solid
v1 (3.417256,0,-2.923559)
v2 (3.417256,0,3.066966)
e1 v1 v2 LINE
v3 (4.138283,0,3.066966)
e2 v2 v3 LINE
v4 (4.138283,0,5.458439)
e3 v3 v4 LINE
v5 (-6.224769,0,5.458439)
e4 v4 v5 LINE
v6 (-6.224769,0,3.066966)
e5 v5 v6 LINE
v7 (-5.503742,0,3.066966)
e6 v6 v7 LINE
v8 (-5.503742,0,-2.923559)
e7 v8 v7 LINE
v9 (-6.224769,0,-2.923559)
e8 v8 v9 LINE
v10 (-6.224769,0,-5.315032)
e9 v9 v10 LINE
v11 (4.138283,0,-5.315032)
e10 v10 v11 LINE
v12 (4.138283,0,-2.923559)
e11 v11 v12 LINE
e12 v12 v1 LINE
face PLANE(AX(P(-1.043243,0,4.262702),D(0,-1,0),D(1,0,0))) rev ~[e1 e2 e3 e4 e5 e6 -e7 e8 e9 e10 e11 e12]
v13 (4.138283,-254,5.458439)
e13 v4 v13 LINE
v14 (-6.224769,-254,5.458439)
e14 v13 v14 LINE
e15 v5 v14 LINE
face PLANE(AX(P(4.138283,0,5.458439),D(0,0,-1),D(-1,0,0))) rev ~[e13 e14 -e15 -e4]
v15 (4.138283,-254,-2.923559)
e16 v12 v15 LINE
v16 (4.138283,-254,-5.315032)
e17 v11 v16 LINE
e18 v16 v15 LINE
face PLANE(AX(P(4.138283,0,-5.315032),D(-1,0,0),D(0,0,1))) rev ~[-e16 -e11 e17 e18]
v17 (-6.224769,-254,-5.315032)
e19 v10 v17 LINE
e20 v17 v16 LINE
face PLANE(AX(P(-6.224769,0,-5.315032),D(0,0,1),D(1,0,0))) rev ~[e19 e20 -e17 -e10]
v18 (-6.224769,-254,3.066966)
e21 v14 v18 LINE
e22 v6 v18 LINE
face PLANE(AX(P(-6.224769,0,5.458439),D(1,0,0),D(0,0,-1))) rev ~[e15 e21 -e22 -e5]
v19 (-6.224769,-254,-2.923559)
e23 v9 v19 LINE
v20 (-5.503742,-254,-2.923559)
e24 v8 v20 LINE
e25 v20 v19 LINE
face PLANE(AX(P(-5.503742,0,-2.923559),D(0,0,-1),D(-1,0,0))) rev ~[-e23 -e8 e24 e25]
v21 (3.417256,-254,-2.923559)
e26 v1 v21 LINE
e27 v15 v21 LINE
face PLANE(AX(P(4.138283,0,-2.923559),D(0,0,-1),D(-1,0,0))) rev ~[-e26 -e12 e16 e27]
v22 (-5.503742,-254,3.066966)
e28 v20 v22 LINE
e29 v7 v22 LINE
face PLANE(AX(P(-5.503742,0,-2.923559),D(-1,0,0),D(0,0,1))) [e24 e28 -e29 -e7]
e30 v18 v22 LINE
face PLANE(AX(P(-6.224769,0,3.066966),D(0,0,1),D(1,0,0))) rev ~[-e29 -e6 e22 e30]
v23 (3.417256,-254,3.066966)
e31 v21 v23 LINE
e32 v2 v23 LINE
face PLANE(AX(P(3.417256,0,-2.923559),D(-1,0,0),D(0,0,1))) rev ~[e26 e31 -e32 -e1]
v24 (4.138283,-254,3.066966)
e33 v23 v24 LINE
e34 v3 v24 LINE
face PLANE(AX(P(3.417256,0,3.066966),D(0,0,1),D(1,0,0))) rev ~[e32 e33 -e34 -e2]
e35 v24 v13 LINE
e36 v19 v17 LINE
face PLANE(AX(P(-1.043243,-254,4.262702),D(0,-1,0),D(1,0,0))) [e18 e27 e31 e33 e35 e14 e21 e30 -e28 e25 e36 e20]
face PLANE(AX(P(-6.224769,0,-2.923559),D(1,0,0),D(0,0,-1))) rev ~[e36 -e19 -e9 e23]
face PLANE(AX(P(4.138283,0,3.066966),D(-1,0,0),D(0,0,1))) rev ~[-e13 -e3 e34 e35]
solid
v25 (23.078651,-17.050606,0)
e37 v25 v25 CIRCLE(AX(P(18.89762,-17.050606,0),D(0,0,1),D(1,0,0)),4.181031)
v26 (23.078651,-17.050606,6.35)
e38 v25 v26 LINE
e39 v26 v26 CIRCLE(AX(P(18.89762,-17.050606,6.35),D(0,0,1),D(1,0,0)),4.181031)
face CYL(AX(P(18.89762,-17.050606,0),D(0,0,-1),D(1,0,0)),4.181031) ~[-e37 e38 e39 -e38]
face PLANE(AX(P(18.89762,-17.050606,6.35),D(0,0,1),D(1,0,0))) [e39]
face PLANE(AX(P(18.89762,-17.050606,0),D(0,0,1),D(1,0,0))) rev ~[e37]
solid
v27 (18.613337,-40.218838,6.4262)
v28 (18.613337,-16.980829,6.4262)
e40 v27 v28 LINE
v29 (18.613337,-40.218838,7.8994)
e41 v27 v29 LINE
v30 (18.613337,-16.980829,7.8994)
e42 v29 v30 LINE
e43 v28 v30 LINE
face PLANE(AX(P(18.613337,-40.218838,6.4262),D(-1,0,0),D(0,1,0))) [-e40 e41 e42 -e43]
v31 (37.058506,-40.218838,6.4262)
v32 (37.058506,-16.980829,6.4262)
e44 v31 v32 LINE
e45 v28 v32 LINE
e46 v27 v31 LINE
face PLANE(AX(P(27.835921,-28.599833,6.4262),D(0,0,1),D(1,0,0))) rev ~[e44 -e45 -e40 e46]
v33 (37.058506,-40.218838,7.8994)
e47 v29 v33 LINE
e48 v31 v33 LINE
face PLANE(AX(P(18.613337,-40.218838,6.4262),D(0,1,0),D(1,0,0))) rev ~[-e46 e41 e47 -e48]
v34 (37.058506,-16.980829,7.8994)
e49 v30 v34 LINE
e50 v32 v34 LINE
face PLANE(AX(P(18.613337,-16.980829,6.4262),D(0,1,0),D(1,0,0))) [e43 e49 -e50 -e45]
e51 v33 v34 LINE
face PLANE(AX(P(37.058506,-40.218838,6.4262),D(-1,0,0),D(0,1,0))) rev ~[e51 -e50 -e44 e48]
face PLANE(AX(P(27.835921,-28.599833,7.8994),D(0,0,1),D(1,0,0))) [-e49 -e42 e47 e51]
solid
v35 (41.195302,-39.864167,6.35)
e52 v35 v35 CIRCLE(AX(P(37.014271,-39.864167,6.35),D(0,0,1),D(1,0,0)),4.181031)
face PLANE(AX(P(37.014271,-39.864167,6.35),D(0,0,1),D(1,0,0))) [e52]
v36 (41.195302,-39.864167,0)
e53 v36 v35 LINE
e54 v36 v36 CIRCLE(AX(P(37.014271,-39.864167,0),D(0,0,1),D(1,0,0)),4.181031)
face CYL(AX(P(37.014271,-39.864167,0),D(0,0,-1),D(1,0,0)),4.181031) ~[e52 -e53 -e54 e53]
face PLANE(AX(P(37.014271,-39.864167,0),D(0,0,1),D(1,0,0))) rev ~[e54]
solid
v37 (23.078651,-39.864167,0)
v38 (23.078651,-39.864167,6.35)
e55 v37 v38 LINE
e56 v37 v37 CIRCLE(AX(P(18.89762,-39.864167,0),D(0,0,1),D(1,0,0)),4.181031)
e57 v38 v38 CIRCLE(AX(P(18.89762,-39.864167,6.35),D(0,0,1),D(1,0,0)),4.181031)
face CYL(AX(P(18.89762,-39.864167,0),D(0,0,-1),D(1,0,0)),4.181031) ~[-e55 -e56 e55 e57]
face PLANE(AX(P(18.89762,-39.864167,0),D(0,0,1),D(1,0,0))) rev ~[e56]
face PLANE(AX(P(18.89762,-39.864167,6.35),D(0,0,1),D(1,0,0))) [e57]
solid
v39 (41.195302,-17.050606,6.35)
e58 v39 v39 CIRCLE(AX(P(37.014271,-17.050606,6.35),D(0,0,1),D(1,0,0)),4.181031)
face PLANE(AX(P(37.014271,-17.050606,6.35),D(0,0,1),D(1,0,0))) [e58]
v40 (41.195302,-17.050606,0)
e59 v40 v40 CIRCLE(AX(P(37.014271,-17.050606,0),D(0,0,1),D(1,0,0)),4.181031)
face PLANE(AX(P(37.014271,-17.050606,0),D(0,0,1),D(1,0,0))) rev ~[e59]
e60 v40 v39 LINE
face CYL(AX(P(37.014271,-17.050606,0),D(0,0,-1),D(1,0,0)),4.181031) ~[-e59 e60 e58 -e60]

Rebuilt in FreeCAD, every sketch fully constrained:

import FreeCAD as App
import Part
import Sketcher
Q = App.Units.Quantity

doc = App.newDocument("Part")
params = doc.addObject("Spreadsheet::Sheet", "Params")
for row, (alias, value) in enumerate([
    ("pad1_length", "10 in"),
    ("pad2_length", "0.25 in"),
    ("pad3_length", "0.25 in"),
    ("pad4_length", "0.25 in"),
    ("pad5_length", "0.25 in"),
    ("pad6_length", "0.058 in"),
], start=1):
    params.set(f"A{row}", alias)
    params.set(f"B{row}", "=" + value)
    params.setAlias(f"B{row}", alias)

body = doc.addObject("PartDesign::Body", "Body")

sketch1 = body.newObject("Sketcher::SketchObject", "Sketch")
sketch1.AttachmentSupport = (doc.getObject("XZ_Plane"), [""])
sketch1.MapMode = "FlatFace"
sketch1.addGeometry([
    Part.LineSegment(App.Vector(4.1, 5.5, 0), App.Vector(-6.2, 5.5, 0)),
    Part.LineSegment(App.Vector(-6.2, 5.5, 0), App.Vector(-6.2, 3.1, 0)),
    Part.LineSegment(App.Vector(-6.2, 3.1, 0), App.Vector(-5.5, 3.1, 0)),
    Part.LineSegment(App.Vector(-5.5, 3.1, 0), App.Vector(-5.5, -2.9, 0)),
    Part.LineSegment(App.Vector(-5.5, -2.9, 0), App.Vector(-6.2, -2.9, 0)),
    Part.LineSegment(App.Vector(-6.2, -2.9, 0), App.Vector(-6.2, -5.3, 0)),
    Part.LineSegment(App.Vector(-6.2, -5.3, 0), App.Vector(4.1, -5.3, 0)),
    Part.LineSegment(App.Vector(4.1, -5.3, 0), App.Vector(4.1, -2.9, 0)),
    Part.LineSegment(App.Vector(4.1, -2.9, 0), App.Vector(3.4, -2.9, 0)),
    Part.LineSegment(App.Vector(3.4, -2.9, 0), App.Vector(3.4, 3.1, 0)),
    Part.LineSegment(App.Vector(3.4, 3.1, 0), App.Vector(4.1, 3.1, 0)),
    Part.LineSegment(App.Vector(4.1, 3.1, 0), App.Vector(4.1, 5.5, 0)),
], False)
sketch1.addConstraint([
    Sketcher.Constraint("Coincident", 0, 2, 1, 1),
    Sketcher.Constraint("Coincident", 1, 2, 2, 1),
    Sketcher.Constraint("Coincident", 2, 2, 3, 1),
    Sketcher.Constraint("Coincident", 3, 2, 4, 1),
    Sketcher.Constraint("Coincident", 4, 2, 5, 1),
    Sketcher.Constraint("Coincident", 5, 2, 6, 1),
    Sketcher.Constraint("Coincident", 6, 2, 7, 1),
    Sketcher.Constraint("Coincident", 7, 2, 8, 1),
    Sketcher.Constraint("Coincident", 8, 2, 9, 1),
    Sketcher.Constraint("Coincident", 9, 2, 10, 1),
    Sketcher.Constraint("Coincident", 10, 2, 11, 1),
    Sketcher.Constraint("Coincident", 11, 2, 0, 1),
    Sketcher.Constraint("Horizontal", 0),
    Sketcher.Constraint("Vertical", 1),
    Sketcher.Constraint("Horizontal", 2),
    Sketcher.Constraint("Vertical", 3),
    Sketcher.Constraint("Horizontal", 4),
    Sketcher.Constraint("Vertical", 5),
    Sketcher.Constraint("Horizontal", 6),
    Sketcher.Constraint("Vertical", 7),
    Sketcher.Constraint("Horizontal", 8),
    Sketcher.Constraint("Vertical", 9),
    Sketcher.Constraint("Horizontal", 10),
    Sketcher.Constraint("Vertical", 11),
    Sketcher.Constraint("Horizontal", 4, 2, 7, 2),
    Sketcher.Constraint("Horizontal", 2, 2, 9, 2),
    Sketcher.Constraint("Vertical", 1, 2, 4, 2),
    Sketcher.Constraint("Vertical", 7, 2, 10, 2),
    Sketcher.Constraint("Equal", 4, 8),
    Sketcher.Constraint("Equal", 1, 5),
    Sketcher.Constraint("DistanceY", 3, 2, 0, 2, Q("0.3299999 in")),
    Sketcher.Constraint("DistanceX", 0, 2, 0, 1, Q("10.363052 mm")),
    Sketcher.Constraint("DistanceX", 3, 2, 8, 2, Q("8.920998 mm")),
    Sketcher.Constraint("DistanceY", 1, 2, 1, 1, Q("2.391473 mm")),
    Sketcher.Constraint("DistanceX", 0, 2, -1, 1, Q("6.224769 mm")),
    Sketcher.Constraint("DistanceY", -1, 1, 0, 2, Q("5.458439 mm")),
])
pad1 = body.newObject("PartDesign::Pad", "Pad")
pad1.Profile = sketch1
pad1.setExpression("Length", "Params.pad1_length")
body2 = doc.addObject("PartDesign::Body", "Body001")

sketch2 = body2.newObject("Sketcher::SketchObject", "Sketch001")
sketch2.AttachmentSupport = (doc.getObject("XY_Plane001"), [""])
sketch2.MapMode = "FlatFace"
sketch2.addGeometry(Part.Circle(App.Vector(18.9, -17.1, 0), App.Vector(0, 0, 1), 4.2), False)
sketch2.addConstraint([
    Sketcher.Constraint("Diameter", 0, Q("8.362062 mm")),
    Sketcher.Constraint("DistanceX", -1, 1, 0, 3, Q("18.89762 mm")),
    Sketcher.Constraint("DistanceY", 0, 3, -1, 1, Q("17.050606 mm")),
])
pad2 = body2.newObject("PartDesign::Pad", "Pad001")
pad2.Profile = sketch2
pad2.setExpression("Length", "Params.pad2_length")
body3 = doc.addObject("PartDesign::Body", "Body002")

sketch3 = body3.newObject("Sketcher::SketchObject", "Sketch002")
sketch3.AttachmentSupport = (doc.getObject("XY_Plane002"), [""])
sketch3.MapMode = "FlatFace"
sketch3.addGeometry(Part.Circle(App.Vector(37, -17.1, 0), App.Vector(0, 0, 1), 4.2), False)
sketch3.addConstraint([
    Sketcher.Constraint("Diameter", 0, Q("8.362062 mm")),
    Sketcher.Constraint("DistanceX", -1, 1, 0, 3, Q("37.014271 mm")),
    Sketcher.Constraint("DistanceY", 0, 3, -1, 1, Q("17.050606 mm")),
])
pad3 = body3.newObject("PartDesign::Pad", "Pad002")
pad3.Profile = sketch3
pad3.setExpression("Length", "Params.pad3_length")
body4 = doc.addObject("PartDesign::Body", "Body003")

sketch4 = body4.newObject("Sketcher::SketchObject", "Sketch003")
sketch4.AttachmentSupport = (doc.getObject("XY_Plane003"), [""])
sketch4.MapMode = "FlatFace"
sketch4.addGeometry(Part.Circle(App.Vector(37, -39.9, 0), App.Vector(0, 0, 1), 4.2), False)
sketch4.addConstraint([
    Sketcher.Constraint("Diameter", 0, Q("8.362062 mm")),
    Sketcher.Constraint("DistanceX", -1, 1, 0, 3, Q("37.014271 mm")),
    Sketcher.Constraint("DistanceY", 0, 3, -1, 1, Q("39.864167 mm")),
])
pad4 = body4.newObject("PartDesign::Pad", "Pad003")
pad4.Profile = sketch4
pad4.setExpression("Length", "Params.pad4_length")
body5 = doc.addObject("PartDesign::Body", "Body004")

sketch5 = body5.newObject("Sketcher::SketchObject", "Sketch004")
sketch5.AttachmentSupport = (doc.getObject("XY_Plane004"), [""])
sketch5.MapMode = "FlatFace"
sketch5.addGeometry(Part.Circle(App.Vector(18.9, -39.9, 0), App.Vector(0, 0, 1), 4.2), False)
sketch5.addConstraint([
    Sketcher.Constraint("Diameter", 0, Q("8.362062 mm")),
    Sketcher.Constraint("DistanceX", -1, 1, 0, 3, Q("18.89762 mm")),
    Sketcher.Constraint("DistanceY", 0, 3, -1, 1, Q("39.864167 mm")),
])
pad5 = body5.newObject("PartDesign::Pad", "Pad004")
pad5.Profile = sketch5
pad5.setExpression("Length", "Params.pad5_length")
body6 = doc.addObject("PartDesign::Body", "Body005")

sketch6 = body6.newObject("Sketcher::SketchObject", "Sketch005")
sketch6.AttachmentSupport = (doc.getObject("XY_Plane005"), [""])
sketch6.MapMode = "FlatFace"
sketch6.AttachmentOffset = App.Placement(App.Vector(0, 0, 0.253 * 25.4), App.Rotation())
sketch6.addGeometry([
    Part.LineSegment(App.Vector(19, -17, 0), App.Vector(19, -40, 0)),
    Part.LineSegment(App.Vector(19, -40, 0), App.Vector(37, -40, 0)),
    Part.LineSegment(App.Vector(37, -40, 0), App.Vector(37, -17, 0)),
    Part.LineSegment(App.Vector(37, -17, 0), App.Vector(19, -17, 0)),
], False)
sketch6.addConstraint([
    Sketcher.Constraint("Coincident", 0, 2, 1, 1),
    Sketcher.Constraint("Coincident", 1, 2, 2, 1),
    Sketcher.Constraint("Coincident", 2, 2, 3, 1),
    Sketcher.Constraint("Coincident", 3, 2, 0, 1),
    Sketcher.Constraint("Vertical", 0),
    Sketcher.Constraint("Horizontal", 1),
    Sketcher.Constraint("Vertical", 2),
    Sketcher.Constraint("Horizontal", 3),
    Sketcher.Constraint("DistanceX", 1, 1, 1, 2, Q("18.44517 mm")),
    Sketcher.Constraint("DistanceY", 0, 2, 0, 1, Q("23.238009 mm")),
    Sketcher.Constraint("DistanceY", 2, 2, -1, 1, Q("16.980829 mm")),
    Sketcher.Constraint("DistanceX", -1, 1, 0, 2, Q("18.613337 mm")),
])
pad6 = body6.newObject("PartDesign::Pad", "Pad005")
pad6.Profile = sketch6
pad6.setExpression("Length", "Params.pad6_length")

doc.recompute()
